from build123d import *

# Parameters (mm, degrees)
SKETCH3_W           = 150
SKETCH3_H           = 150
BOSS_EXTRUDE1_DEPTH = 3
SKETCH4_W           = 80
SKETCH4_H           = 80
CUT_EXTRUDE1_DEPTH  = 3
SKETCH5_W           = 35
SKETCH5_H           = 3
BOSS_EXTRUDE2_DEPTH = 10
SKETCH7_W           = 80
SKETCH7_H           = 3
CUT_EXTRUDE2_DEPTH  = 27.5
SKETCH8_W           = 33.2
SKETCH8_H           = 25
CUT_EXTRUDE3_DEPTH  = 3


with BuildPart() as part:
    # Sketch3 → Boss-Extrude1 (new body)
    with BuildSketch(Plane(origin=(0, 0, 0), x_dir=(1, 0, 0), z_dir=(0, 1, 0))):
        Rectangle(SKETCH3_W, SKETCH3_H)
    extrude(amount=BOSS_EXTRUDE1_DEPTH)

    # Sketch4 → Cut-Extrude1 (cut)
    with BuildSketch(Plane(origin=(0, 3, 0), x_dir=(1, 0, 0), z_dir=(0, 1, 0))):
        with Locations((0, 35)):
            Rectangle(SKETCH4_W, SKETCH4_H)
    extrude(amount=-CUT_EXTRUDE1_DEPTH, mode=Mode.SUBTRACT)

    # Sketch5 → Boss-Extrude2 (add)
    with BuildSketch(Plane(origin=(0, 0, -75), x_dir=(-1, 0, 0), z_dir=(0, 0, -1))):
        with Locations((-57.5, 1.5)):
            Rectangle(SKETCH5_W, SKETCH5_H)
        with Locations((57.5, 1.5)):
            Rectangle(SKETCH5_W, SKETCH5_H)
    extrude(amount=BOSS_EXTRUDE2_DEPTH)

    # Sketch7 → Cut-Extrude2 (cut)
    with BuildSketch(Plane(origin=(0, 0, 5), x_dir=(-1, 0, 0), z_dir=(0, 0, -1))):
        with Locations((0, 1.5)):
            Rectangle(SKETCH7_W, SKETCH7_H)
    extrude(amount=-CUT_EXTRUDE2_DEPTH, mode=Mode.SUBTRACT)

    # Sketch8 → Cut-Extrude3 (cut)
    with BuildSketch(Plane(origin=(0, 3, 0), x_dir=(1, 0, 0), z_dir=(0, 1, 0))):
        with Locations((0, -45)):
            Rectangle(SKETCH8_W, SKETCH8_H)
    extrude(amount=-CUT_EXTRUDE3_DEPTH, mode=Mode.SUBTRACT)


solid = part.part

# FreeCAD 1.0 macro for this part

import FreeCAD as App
import Part
import Sketcher
from FreeCAD import Vector
Q = App.Units.Quantity


def add_polygon(sketch, points):
    """Adds a closed chain of lines whose ends are joined by coincident constraints."""
    first, n = sketch.GeometryCount, len(points)
    for a, b in zip(points, points[1:] + points[:1]):
        sketch.addGeometry(Part.LineSegment(App.Vector(*a, 0), App.Vector(*b, 0)), False)
    for i in range(n):
        sketch.addConstraint(Sketcher.Constraint("Coincident", first + i, 2, first + (i + 1) % n, 1))

doc = App.newDocument("Part")
body = doc.addObject("PartDesign::Body", "Body")

# Sketch on XZ plane
sketch1 = body.newObject("Sketcher::SketchObject", "Sketch")
sketch1.AttachmentSupport = (doc.getObject("XZ_Plane"), [""])
sketch1.MapMode = "FlatFace"
add_polygon(sketch1, [(-75, -75), (-75, 75), (75, 75), (75, -75)])  # lines 0-3
sketch1.addConstraint([
    Sketcher.Constraint("Vertical", 0),
    Sketcher.Constraint("Horizontal", 1),
    Sketcher.Constraint("Vertical", 2),
    Sketcher.Constraint("Horizontal", 3),
    Sketcher.Constraint("Symmetric", 0, 2, 2, 2, -1, 1),
    Sketcher.Constraint("Equal", 3, 0),
    Sketcher.Constraint("DistanceX", 1, 1, 1, 2, Q("150 mm")),
])
pad1 = body.newObject("PartDesign::Pad", "Pad")
pad1.Profile = sketch1
pad1.Length = 3
pad1.Reversed = True

# Sketch on XZ plane
sketch2 = body.newObject("Sketcher::SketchObject", "Sketch001")
sketch2.AttachmentSupport = (doc.getObject("XZ_Plane"), [""])
sketch2.MapMode = "FlatFace"
sketch2.AttachmentOffset = App.Placement(Vector(0, 0, -3), App.Rotation())
add_polygon(sketch2, [(-40, -75), (-40, 5), (40, 5), (40, -75)])  # lines 0-3
sketch2.addConstraint([
    Sketcher.Constraint("Vertical", 0),
    Sketcher.Constraint("Horizontal", 1),
    Sketcher.Constraint("Vertical", 2),
    Sketcher.Constraint("Horizontal", 3),
    Sketcher.Constraint("Equal", 3, 0),
    Sketcher.Constraint("DistanceX", 1, 1, 1, 2, Q("80 mm")),
    Sketcher.Constraint("DistanceX", 0, 2, -1, 1, Q("40 mm")),
    Sketcher.Constraint("DistanceY", -1, 1, 0, 2, Q("5 mm")),
])
pocket1 = body.newObject("PartDesign::Pocket", "Pocket")
pocket1.Profile = sketch2
pocket1.Length = 3
pocket1.Reversed = True

# Sketch on XY plane
sketch3 = body.newObject("Sketcher::SketchObject", "Sketch002")
sketch3.AttachmentSupport = (doc.getObject("XY_Plane"), [""])
sketch3.MapMode = "FlatFace"
sketch3.AttachmentOffset = App.Placement(Vector(0, 0, -75), App.Rotation())
add_polygon(sketch3, [(75, 3), (75, 0), (40, 0), (40, 3)])  # lines 0-3
add_polygon(sketch3, [(-40, 3), (-40, 0), (-75, 0), (-75, 3)])  # lines 4-7
sketch3.addConstraint([
    Sketcher.Constraint("Vertical", 0),
    Sketcher.Constraint("Horizontal", 1),
    Sketcher.Constraint("Vertical", 2),
    Sketcher.Constraint("Horizontal", 3),
    Sketcher.Constraint("Vertical", 4),
    Sketcher.Constraint("Horizontal", 5),
    Sketcher.Constraint("Vertical", 6),
    Sketcher.Constraint("Horizontal", 7),
    Sketcher.Constraint("Symmetric", 1, 2, 4, 2, -1, 1),
    Sketcher.Constraint("Symmetric", 0, 2, 5, 2, -2),
    Sketcher.Constraint("Horizontal", 3, 2, 6, 2),
    Sketcher.Constraint("DistanceX", 1, 2, 1, 1, Q("35 mm")),
    Sketcher.Constraint("DistanceY", 0, 2, 0, 1, Q("3 mm")),
    Sketcher.Constraint("DistanceX", -1, 1, 0, 2, Q("75 mm")),
])
pad2 = body.newObject("PartDesign::Pad", "Pad001")
pad2.Profile = sketch3
pad2.Length = 10
pad2.Reversed = True

# Sketch on XY plane
sketch4 = body.newObject("Sketcher::SketchObject", "Sketch003")
sketch4.AttachmentSupport = (doc.getObject("XY_Plane"), [""])
sketch4.MapMode = "FlatFace"
sketch4.AttachmentOffset = App.Placement(Vector(0, 0, 5), App.Rotation())
add_polygon(sketch4, [(40, 3), (40, 0), (-40, 0), (-40, 3)])  # lines 0-3
sketch4.addConstraint([
    Sketcher.Constraint("Vertical", 0),
    Sketcher.Constraint("Horizontal", 1),
    Sketcher.Constraint("Vertical", 2),
    Sketcher.Constraint("Horizontal", 3),
    Sketcher.Constraint("Symmetric", 0, 2, 1, 2, -1, 1),
    Sketcher.Constraint("DistanceX", 1, 2, 1, 1, Q("80 mm")),
    Sketcher.Constraint("DistanceY", 0, 2, 0, 1, Q("3 mm")),
])
pocket2 = body.newObject("PartDesign::Pocket", "Pocket001")
pocket2.Profile = sketch4
pocket2.Length = 27.5
pocket2.Reversed = True

# Sketch on XZ plane
sketch5 = body.newObject("Sketcher::SketchObject", "Sketch004")
sketch5.AttachmentSupport = (doc.getObject("XZ_Plane"), [""])
sketch5.MapMode = "FlatFace"
sketch5.AttachmentOffset = App.Placement(Vector(0, 0, -3), App.Rotation())
add_polygon(sketch5, [(-17, 32), (-17, 58), (17, 58), (17, 32)])  # lines 0-3
sketch5.addConstraint([
    Sketcher.Constraint("Vertical", 0),
    Sketcher.Constraint("Horizontal", 1),
    Sketcher.Constraint("Vertical", 2),
    Sketcher.Constraint("Horizontal", 3),
    Sketcher.Constraint("DistanceY", 0, 1, 0, 2, Q("25 mm")),
    Sketcher.Constraint("DistanceX", 1, 1, 1, 2, Q("33.2 mm")),
    Sketcher.Constraint("DistanceX", 0, 2, -1, 1, Q("16.6 mm")),
    Sketcher.Constraint("DistanceY", -1, 1, 0, 2, Q("57.5 mm")),
])
pocket3 = body.newObject("PartDesign::Pocket", "Pocket002")
pocket3.Profile = sketch5
pocket3.Length = 3
pocket3.Reversed = True

doc.recompute()
